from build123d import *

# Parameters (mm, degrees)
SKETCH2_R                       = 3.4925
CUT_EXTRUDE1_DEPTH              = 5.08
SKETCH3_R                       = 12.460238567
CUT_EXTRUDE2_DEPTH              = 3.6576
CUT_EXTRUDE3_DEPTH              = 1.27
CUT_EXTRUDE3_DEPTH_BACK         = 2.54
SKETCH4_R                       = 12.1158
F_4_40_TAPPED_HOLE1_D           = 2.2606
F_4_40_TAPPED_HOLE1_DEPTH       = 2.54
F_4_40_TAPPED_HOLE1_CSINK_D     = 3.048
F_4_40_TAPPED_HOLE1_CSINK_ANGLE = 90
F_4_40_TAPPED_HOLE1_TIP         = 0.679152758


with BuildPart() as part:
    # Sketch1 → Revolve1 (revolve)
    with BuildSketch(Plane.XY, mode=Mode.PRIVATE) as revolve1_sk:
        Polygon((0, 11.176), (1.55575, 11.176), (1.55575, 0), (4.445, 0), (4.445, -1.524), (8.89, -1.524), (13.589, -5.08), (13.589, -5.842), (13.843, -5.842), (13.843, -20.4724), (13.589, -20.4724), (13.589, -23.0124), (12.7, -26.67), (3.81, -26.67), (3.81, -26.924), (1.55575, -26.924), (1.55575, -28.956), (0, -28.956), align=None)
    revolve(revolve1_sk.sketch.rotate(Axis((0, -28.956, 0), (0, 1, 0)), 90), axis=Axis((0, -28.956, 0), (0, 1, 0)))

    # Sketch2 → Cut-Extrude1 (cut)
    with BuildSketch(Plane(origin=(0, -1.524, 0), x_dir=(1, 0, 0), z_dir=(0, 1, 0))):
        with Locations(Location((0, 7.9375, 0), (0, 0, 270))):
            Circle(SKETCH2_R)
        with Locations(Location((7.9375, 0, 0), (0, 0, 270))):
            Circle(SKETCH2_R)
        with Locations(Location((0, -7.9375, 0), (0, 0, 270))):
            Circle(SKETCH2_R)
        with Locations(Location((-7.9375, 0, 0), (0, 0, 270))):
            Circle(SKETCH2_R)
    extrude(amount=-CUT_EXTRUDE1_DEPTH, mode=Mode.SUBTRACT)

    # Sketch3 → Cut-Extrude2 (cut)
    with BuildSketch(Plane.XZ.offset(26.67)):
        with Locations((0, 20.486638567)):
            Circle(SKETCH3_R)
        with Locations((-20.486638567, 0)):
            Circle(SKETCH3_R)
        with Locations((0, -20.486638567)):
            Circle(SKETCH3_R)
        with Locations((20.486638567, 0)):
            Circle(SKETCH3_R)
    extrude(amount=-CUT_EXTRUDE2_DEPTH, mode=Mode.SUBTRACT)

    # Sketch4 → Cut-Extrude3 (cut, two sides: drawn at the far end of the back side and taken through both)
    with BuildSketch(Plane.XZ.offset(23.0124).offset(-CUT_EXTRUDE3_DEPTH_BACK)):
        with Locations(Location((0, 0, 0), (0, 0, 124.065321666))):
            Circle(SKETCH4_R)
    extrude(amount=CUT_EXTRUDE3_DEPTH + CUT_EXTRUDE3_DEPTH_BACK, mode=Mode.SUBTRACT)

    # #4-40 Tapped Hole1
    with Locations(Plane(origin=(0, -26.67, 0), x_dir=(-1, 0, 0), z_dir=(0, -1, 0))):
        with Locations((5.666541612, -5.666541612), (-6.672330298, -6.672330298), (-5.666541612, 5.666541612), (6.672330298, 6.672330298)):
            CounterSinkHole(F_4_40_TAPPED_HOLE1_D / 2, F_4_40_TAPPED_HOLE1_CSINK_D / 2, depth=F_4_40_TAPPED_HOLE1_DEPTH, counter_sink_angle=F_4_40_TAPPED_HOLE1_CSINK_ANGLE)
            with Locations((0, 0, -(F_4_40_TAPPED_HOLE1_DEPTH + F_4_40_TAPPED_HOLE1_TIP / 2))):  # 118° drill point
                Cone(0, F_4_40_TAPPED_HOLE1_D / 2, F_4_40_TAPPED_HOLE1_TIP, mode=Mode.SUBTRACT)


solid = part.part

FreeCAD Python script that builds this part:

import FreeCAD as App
import Part
import Sketcher
from FreeCAD import Vector
Q = App.Units.Quantity


def add_polygon(sketch, points):
    """Adds a closed chain of lines whose ends are joined by coincident constraints."""
    first, n = sketch.GeometryCount, len(points)
    for a, b in zip(points, points[1:] + points[:1]):
        sketch.addGeometry(Part.LineSegment(App.Vector(*a, 0), App.Vector(*b, 0)), False)
    for i in range(n):
        sketch.addConstraint(Sketcher.Constraint("Coincident", first + i, 2, first + (i + 1) % n, 1))

doc = App.newDocument("Part")
body = doc.addObject("PartDesign::Body", "Body")

sketch1 = body.newObject("Sketcher::SketchObject", "Sketch")
sketch1.AttachmentSupport = (doc.getObject("XY_Plane"), [""])
sketch1.MapMode = "FlatFace"
add_polygon(sketch1, [(1.56, 11.18), (0, 11.18), (0, -28.96), (1.56, -28.96), (1.56, -26.92), (3.81, -26.92), (3.81, -26.67), (12.7, -26.67), (13.59, -23.01), (13.59, -20.47), (13.84, -20.47), (13.84, -5.84), (13.59, -5.84), (13.59, -5.08), (8.89, -1.52), (4.45, -1.52), (4.45, 0), (1.56, 0)])
sketch1.addConstraint(Sketcher.Constraint("Horizontal", 0))
sketch1.addConstraint(Sketcher.Constraint("Vertical", 1))
sketch1.addConstraint(Sketcher.Constraint("Horizontal", 2))
sketch1.addConstraint(Sketcher.Constraint("Vertical", 3))
sketch1.addConstraint(Sketcher.Constraint("Horizontal", 4))
sketch1.addConstraint(Sketcher.Constraint("Vertical", 5))
sketch1.addConstraint(Sketcher.Constraint("Horizontal", 6))
sketch1.addConstraint(Sketcher.Constraint("Vertical", 8))
sketch1.addConstraint(Sketcher.Constraint("Horizontal", 9))
sketch1.addConstraint(Sketcher.Constraint("Vertical", 10))
sketch1.addConstraint(Sketcher.Constraint("Horizontal", 11))
sketch1.addConstraint(Sketcher.Constraint("Vertical", 12))
sketch1.addConstraint(Sketcher.Constraint("Horizontal", 14))
sketch1.addConstraint(Sketcher.Constraint("Vertical", 15))
sketch1.addConstraint(Sketcher.Constraint("Horizontal", 16))
sketch1.addConstraint(Sketcher.Constraint("Vertical", 17))
sketch1.addConstraint(Sketcher.Constraint("PointOnObject", 0, 2, -2))
sketch1.addConstraint(Sketcher.Constraint("PointOnObject", 15, 2, -1))
sketch1.addConstraint(Sketcher.Constraint("Vertical", 8, 2, 11, 2))
sketch1.addConstraint(Sketcher.Constraint("Vertical", 3, 2, 16, 2))
sketch1.addConstraint(Sketcher.Constraint("Equal", 11, 5))
sketch1.addConstraint(Sketcher.Constraint("DistanceY", 8, 1, 8, 2, Q("0.1 in")))
sketch1.addConstraint(Sketcher.Constraint("DistanceX", 6, 1, 6, 2, Q("0.35 in")))
sketch1.addConstraint(Sketcher.Constraint("DistanceX", 9, 1, 9, 2, Q("0.01 in")))
sketch1.addConstraint(Sketcher.Constraint("DistanceY", 1, 2, 1, 1, Q("1.58 in")))
sketch1.addConstraint(Sketcher.Constraint("DistanceY", 3, 1, 3, 2, Q("0.08 in")))
sketch1.addConstraint(Sketcher.Constraint("DistanceY", 12, 1, 12, 2, Q("0.03 in")))
sketch1.addConstraint(Sketcher.Constraint("DistanceY", 15, 1, 15, 2, Q("0.06 in")))
sketch1.addConstraint(Sketcher.Constraint("DistanceY", 17, 1, 17, 2, Q("0.44 in")))
sketch1.addConstraint(Sketcher.Constraint("DistanceX", -1, 1, 6, 2, Q("0.5 in")))
sketch1.addConstraint(Sketcher.Constraint("DistanceY", 12, 2, -1, 1, Q("0.2 in")))
sketch1.addConstraint(Sketcher.Constraint("DistanceX", 14, 2, 14, 1, Q("0.175 in")))
sketch1.addConstraint(Sketcher.Constraint("DistanceY", 10, 1, 10, 2, Q("0.576 in")))
sketch1.addConstraint(Sketcher.Constraint("DistanceX", -1, 1, 13, 2, Q("0.35 in")))
sketch1.addConstraint(Sketcher.Constraint("DistanceX", 14, 2, 12, 2, Q("0.36 in")))
sketch1.addConstraint(Sketcher.Constraint("DistanceX", 0, 2, 0, 1, 1.55575))
revolution = body.newObject("PartDesign::Revolution", "Revolution")
revolution.Profile = sketch1
revolution.ReferenceAxis = (sketch1, ["V_Axis"])
revolution.Angle = 360

sketch2 = body.newObject("Sketcher::SketchObject", "Sketch001")
sketch2.AttachmentSupport = (doc.getObject("XZ_Plane"), [""])
sketch2.MapMode = "FlatFace"
sketch2.AttachmentOffset = App.Placement(Vector(0, 0, 0.06 * 25.4), App.Rotation())
sketch2.addGeometry(Part.Circle(Vector(0, -7.9, 0), Vector(0, 0, 1), 3.5), False)
sketch2.addGeometry(Part.Circle(Vector(7.9, 0, 0), Vector(0, 0, 1), 3.5), False)
sketch2.addGeometry(Part.Circle(Vector(0, 7.9, 0), Vector(0, 0, 1), 3.5), False)
sketch2.addGeometry(Part.Circle(Vector(-7.9, 0, 0), Vector(0, 0, 1), 3.5), False)
sketch2.addConstraint(Sketcher.Constraint("Equal", 0, 1))
sketch2.addConstraint(Sketcher.Constraint("Equal", 1, 2))
sketch2.addConstraint(Sketcher.Constraint("Equal", 2, 3))
sketch2.addConstraint(Sketcher.Constraint("Symmetric", 0, 3, 2, 3, -1, 1))
sketch2.addConstraint(Sketcher.Constraint("Symmetric", 1, 3, 3, 3, -1, 1))
sketch2.addConstraint(Sketcher.Constraint("PointOnObject", 0, 3, -2))
sketch2.addConstraint(Sketcher.Constraint("PointOnObject", 1, 3, -1))
sketch2.addConstraint(Sketcher.Constraint("Diameter", 0, Q("0.275 in")))
sketch2.addConstraint(Sketcher.Constraint("DistanceY", 0, 3, -1, 1, Q("0.3125 in")))
sketch2.addConstraint(Sketcher.Constraint("DistanceX", -1, 1, 1, 3, Q("0.3125 in")))
pocket1 = body.newObject("PartDesign::Pocket", "Pocket")
pocket1.Profile = sketch2
pocket1.Length = Q("0.2 in")
pocket1.Reversed = True

sketch3 = body.newObject("Sketcher::SketchObject", "Sketch002")
sketch3.AttachmentSupport = (doc.getObject("XZ_Plane"), [""])
sketch3.MapMode = "FlatFace"
sketch3.AttachmentOffset = App.Placement(Vector(0, 0, 1.05 * 25.4), App.Rotation())
sketch3.addGeometry(Part.Circle(Vector(0, 20, 0), Vector(0, 0, 1), 12), False)
sketch3.addGeometry(Part.Circle(Vector(-20, 0, 0), Vector(0, 0, 1), 12), False)
sketch3.addGeometry(Part.Circle(Vector(0, -20, 0), Vector(0, 0, 1), 12), False)
sketch3.addGeometry(Part.Circle(Vector(20, 0, 0), Vector(0, 0, 1), 12), False)
sketch3.addConstraint(Sketcher.Constraint("Equal", 0, 1))
sketch3.addConstraint(Sketcher.Constraint("Equal", 1, 2))
sketch3.addConstraint(Sketcher.Constraint("Equal", 2, 3))
sketch3.addConstraint(Sketcher.Constraint("Symmetric", 0, 3, 2, 3, -1, 1))
sketch3.addConstraint(Sketcher.Constraint("Symmetric", 1, 3, 3, 3, -1, 1))
sketch3.addConstraint(Sketcher.Constraint("PointOnObject", 0, 3, -2))
sketch3.addConstraint(Sketcher.Constraint("PointOnObject", 1, 3, -1))
sketch3.addConstraint(Sketcher.Constraint("Diameter", 0, 24.920477))
sketch3.addConstraint(Sketcher.Constraint("DistanceY", -1, 1, 0, 3, 20.486639))
sketch3.addConstraint(Sketcher.Constraint("DistanceX", 1, 3, -1, 1, 20.486639))
pocket2 = body.newObject("PartDesign::Pocket", "Pocket001")
pocket2.Profile = sketch3
pocket2.Length = Q("0.144 in")

sketch4 = body.newObject("Sketcher::SketchObject", "Sketch003")
sketch4.AttachmentSupport = (doc.getObject("XZ_Plane"), [""])
sketch4.MapMode = "FlatFace"
sketch4.AttachmentOffset = App.Placement(Vector(0, 0, 0.906 * 25.4), App.Rotation())
sketch4.addGeometry(Part.Circle(Vector(0, 0, 0), Vector(0, 0, 1), 12), False)
sketch4.addConstraint(Sketcher.Constraint("Coincident", 0, 3, -1, 1))
sketch4.addConstraint(Sketcher.Constraint("Diameter", 0, Q("0.954 in")))
pocket3 = body.newObject("PartDesign::Pocket", "Pocket002")
pocket3.Profile = sketch4
pocket3.Type = "TwoLengths"
pocket3.Length = Q("0.05 in")
pocket3.Length2 = Q("0.1 in")
pocket3.Reversed = True

sketch5 = body.newObject("Sketcher::SketchObject", "Sketch004")
sketch5.AttachmentSupport = (doc.getObject("XZ_Plane"), [""])
sketch5.MapMode = "FlatFace"
sketch5.AttachmentOffset = App.Placement(Vector(0, 0, 1.05 * 25.4), App.Rotation())
sketch5.addGeometry(Part.Circle(Vector(-5.7, 5.7, 0), Vector(0, 0, 1), 1.1), False)
sketch5.addGeometry(Part.Circle(Vector(6.7, 6.7, 0), Vector(0, 0, 1), 1.1), False)
sketch5.addGeometry(Part.Circle(Vector(5.7, -5.7, 0), Vector(0, 0, 1), 1.1), False)
sketch5.addGeometry(Part.Circle(Vector(-6.7, -6.7, 0), Vector(0, 0, 1), 1.1), False)
sketch5.addConstraint(Sketcher.Constraint("Equal", 0, 1))
sketch5.addConstraint(Sketcher.Constraint("Equal", 1, 2))
sketch5.addConstraint(Sketcher.Constraint("Equal", 2, 3))
sketch5.addConstraint(Sketcher.Constraint("Symmetric", 0, 3, 2, 3, -1, 1))
sketch5.addConstraint(Sketcher.Constraint("Symmetric", 1, 3, 3, 3, -1, 1))
sketch5.addConstraint(Sketcher.Constraint("Diameter", 0, Q("0.089 in")))
sketch5.addConstraint(Sketcher.Constraint("DistanceX", 0, 3, -1, 1, 5.666542))
sketch5.addConstraint(Sketcher.Constraint("DistanceY", -1, 1, 0, 3, 5.666542))
sketch5.addConstraint(Sketcher.Constraint("DistanceX", -1, 1, 1, 3, 6.67233))
sketch5.addConstraint(Sketcher.Constraint("DistanceY", -1, 1, 1, 3, 6.67233))
doc.recompute()
hole = body.newObject("PartDesign::Hole", "Hole")
hole.Profile = sketch5
hole.ThreadType = "None"
hole.Diameter = Q("0.089 in")
hole.DepthType = "Dimension"
hole.Depth = Q("0.1 in")
hole.DrillPoint = "Angled"
hole.DrillPointAngle = 118
hole.HoleCutType = "Countersink"
hole.HoleCutDiameter = Q("0.12 in")
hole.HoleCutCountersinkAngle = 90

doc.recompute()
